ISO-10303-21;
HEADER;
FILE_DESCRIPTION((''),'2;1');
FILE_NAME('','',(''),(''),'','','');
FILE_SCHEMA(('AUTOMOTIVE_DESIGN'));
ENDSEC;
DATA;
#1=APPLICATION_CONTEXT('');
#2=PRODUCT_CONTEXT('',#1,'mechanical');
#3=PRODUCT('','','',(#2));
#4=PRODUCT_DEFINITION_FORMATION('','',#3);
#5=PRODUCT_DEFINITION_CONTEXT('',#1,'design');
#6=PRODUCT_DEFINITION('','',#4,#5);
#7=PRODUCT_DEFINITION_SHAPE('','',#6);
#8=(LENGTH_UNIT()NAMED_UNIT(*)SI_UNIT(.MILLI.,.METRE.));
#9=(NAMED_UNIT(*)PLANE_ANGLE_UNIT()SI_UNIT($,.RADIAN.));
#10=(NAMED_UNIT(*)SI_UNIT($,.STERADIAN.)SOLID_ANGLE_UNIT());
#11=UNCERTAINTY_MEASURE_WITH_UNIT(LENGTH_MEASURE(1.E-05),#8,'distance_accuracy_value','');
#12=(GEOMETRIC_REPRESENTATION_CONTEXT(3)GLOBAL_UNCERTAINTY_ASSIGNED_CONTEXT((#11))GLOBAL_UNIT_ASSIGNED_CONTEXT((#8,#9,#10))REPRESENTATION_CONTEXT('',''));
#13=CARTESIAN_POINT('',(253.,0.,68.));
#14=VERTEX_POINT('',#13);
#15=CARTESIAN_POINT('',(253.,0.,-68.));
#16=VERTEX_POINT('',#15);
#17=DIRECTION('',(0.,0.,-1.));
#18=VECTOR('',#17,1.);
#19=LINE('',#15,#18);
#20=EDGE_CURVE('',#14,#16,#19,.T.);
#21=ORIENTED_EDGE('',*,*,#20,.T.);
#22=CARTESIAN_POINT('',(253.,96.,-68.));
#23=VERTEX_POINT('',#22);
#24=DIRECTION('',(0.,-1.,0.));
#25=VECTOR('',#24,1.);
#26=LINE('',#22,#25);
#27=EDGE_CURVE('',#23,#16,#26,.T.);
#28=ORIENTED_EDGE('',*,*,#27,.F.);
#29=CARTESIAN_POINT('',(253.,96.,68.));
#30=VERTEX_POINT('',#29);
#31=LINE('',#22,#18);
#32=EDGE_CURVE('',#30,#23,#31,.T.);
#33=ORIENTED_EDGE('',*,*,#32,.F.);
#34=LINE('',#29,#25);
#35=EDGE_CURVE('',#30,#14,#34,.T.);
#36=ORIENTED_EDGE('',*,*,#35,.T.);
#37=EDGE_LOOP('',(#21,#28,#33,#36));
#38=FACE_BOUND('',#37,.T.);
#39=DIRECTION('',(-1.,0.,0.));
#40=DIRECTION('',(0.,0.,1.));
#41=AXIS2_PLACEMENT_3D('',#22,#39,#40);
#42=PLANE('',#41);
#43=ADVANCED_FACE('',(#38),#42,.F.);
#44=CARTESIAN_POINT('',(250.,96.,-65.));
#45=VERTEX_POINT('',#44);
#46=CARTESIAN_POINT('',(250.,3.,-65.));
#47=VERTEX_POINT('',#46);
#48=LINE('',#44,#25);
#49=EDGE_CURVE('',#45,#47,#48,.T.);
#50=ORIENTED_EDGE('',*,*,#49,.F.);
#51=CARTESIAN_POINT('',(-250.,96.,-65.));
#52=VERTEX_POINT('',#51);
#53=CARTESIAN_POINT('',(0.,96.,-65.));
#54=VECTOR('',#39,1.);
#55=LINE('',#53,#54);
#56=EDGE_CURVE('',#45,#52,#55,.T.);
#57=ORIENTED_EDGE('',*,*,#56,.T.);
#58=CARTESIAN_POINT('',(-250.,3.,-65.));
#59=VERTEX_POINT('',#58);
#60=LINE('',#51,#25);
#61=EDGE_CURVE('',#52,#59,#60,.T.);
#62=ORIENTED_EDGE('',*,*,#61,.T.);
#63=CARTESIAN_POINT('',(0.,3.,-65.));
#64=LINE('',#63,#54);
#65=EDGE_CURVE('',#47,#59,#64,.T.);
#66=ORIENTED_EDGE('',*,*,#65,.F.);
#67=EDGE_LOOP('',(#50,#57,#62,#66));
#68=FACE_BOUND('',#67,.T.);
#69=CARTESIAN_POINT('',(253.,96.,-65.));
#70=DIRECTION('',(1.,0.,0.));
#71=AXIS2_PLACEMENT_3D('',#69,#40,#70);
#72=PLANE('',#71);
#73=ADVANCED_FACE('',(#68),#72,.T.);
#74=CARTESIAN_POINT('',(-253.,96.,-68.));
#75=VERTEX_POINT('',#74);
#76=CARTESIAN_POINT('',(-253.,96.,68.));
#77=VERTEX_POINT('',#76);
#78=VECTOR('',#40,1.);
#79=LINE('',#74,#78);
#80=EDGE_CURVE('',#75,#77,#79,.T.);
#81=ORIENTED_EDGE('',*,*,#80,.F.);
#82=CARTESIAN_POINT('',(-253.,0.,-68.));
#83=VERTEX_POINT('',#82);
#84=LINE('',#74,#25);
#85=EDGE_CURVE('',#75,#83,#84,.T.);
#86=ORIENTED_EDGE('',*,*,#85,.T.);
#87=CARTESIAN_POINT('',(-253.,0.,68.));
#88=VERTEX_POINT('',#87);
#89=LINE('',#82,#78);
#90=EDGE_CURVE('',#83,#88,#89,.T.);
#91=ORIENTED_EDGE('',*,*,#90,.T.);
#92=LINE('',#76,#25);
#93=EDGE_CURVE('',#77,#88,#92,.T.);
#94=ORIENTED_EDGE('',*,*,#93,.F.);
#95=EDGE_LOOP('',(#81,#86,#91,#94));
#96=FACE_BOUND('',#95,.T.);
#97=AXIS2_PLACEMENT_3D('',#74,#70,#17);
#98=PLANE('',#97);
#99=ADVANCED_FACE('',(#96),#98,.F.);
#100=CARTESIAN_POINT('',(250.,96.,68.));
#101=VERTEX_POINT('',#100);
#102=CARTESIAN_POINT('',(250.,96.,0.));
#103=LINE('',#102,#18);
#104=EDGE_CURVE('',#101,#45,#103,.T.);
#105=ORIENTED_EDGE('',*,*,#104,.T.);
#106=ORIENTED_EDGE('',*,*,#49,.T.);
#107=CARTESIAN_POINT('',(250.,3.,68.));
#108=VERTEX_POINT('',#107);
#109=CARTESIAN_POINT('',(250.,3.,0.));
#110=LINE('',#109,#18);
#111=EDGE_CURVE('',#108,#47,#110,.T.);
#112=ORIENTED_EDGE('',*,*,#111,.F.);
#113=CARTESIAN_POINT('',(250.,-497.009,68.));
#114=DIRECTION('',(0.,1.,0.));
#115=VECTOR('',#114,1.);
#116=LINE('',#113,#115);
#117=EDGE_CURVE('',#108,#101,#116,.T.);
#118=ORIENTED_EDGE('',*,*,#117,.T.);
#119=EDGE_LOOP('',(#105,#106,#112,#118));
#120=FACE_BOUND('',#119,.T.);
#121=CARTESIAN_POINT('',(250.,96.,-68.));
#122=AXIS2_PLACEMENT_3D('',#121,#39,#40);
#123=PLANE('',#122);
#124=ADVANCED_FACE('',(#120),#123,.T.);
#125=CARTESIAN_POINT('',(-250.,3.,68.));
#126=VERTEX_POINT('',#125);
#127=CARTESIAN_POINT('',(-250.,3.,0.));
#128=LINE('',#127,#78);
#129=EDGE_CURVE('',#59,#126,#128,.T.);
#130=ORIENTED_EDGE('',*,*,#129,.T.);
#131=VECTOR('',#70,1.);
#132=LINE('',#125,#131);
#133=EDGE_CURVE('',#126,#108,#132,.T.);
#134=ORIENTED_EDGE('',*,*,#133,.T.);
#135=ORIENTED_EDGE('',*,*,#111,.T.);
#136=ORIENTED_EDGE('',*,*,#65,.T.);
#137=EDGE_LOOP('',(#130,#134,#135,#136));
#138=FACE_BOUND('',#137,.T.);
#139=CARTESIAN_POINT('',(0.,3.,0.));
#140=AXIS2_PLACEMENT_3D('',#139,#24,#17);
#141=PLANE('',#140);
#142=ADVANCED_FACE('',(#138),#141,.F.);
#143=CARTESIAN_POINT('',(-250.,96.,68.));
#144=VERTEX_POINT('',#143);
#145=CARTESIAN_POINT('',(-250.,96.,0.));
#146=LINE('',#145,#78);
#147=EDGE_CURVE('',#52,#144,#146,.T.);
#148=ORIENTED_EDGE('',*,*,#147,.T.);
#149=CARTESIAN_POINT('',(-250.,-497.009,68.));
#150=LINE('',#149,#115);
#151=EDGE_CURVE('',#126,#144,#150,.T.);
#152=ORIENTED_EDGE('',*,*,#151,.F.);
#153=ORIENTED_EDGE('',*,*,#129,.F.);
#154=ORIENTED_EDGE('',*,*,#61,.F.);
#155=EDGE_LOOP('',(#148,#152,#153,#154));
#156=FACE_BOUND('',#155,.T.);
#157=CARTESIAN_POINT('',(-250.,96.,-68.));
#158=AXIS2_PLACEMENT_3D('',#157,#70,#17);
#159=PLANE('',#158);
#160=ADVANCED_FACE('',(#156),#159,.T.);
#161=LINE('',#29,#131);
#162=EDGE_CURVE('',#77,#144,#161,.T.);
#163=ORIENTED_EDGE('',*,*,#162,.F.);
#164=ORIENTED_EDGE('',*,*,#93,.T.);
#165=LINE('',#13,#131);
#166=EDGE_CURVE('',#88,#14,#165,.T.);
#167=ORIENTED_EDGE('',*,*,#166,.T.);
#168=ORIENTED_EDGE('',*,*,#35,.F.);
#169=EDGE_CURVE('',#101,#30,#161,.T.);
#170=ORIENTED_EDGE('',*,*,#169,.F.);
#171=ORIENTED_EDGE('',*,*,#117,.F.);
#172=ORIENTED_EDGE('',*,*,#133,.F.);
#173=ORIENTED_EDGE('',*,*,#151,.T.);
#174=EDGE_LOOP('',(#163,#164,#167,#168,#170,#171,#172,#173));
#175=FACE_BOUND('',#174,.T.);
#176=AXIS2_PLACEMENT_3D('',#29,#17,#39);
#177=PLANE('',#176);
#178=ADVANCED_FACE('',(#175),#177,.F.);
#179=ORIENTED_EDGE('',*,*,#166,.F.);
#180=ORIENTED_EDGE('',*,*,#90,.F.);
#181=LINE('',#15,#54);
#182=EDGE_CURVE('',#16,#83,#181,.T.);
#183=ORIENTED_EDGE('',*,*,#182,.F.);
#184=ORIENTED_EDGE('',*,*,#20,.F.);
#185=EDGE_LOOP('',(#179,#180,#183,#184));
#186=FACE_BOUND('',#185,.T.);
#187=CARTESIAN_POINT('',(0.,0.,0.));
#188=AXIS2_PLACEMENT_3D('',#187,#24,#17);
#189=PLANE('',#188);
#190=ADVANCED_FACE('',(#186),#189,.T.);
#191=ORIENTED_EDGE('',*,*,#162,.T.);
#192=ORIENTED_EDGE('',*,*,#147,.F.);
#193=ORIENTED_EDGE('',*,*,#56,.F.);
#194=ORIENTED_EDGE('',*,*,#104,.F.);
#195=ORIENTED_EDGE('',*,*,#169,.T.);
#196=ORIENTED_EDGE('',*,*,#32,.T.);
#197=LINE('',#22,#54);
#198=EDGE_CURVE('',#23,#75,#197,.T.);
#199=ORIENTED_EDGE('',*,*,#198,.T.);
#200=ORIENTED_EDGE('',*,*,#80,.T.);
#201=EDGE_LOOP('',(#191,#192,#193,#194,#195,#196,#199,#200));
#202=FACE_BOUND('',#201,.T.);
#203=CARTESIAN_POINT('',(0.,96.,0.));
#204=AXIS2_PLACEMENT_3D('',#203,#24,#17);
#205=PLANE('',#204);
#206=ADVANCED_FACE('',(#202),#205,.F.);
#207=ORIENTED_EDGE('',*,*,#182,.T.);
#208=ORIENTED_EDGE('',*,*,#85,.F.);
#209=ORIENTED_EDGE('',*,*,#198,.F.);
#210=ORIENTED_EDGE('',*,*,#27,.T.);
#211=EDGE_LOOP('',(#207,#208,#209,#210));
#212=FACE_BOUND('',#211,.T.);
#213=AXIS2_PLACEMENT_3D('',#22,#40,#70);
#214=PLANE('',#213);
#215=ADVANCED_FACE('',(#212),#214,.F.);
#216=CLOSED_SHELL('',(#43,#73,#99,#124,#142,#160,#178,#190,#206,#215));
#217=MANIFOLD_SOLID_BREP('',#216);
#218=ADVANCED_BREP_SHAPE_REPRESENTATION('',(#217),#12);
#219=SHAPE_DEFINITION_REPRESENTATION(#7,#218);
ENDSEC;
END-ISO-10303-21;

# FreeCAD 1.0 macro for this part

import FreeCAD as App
import Part
import Sketcher
from FreeCAD import Vector
Q = App.Units.Quantity


def faces_at(feature, points):
    """Names of the faces that lie closest to the given points."""
    faces = feature.Shape.Faces
    near = lambda p: min(range(len(faces)), key=lambda i: faces[i].distToShape(Part.Vertex(*p))[0])
    return sorted({f"Face{near(p) + 1}" for p in points})

doc = App.newDocument("Part")
body = doc.addObject("PartDesign::Body", "Body")

sketch1 = body.newObject("Sketcher::SketchObject", "Sketch")
sketch1.AttachmentSupport = (doc.getObject("XZ_Plane"), [""])
sketch1.MapMode = "FlatFace"
sketch1.addGeometry([
    Part.LineSegment(Vector(-253, -68, 0), Vector(-253, 68, 0)),
    Part.LineSegment(Vector(-253, 68, 0), Vector(253, 68, 0)),
    Part.LineSegment(Vector(253, 68, 0), Vector(253, -68, 0)),
    Part.LineSegment(Vector(253, -68, 0), Vector(-253, -68, 0)),
], False)
sketch1.addConstraint([
    Sketcher.Constraint("Coincident", 0, 2, 1, 1),
    Sketcher.Constraint("Coincident", 1, 2, 2, 1),
    Sketcher.Constraint("Coincident", 2, 2, 3, 1),
    Sketcher.Constraint("Coincident", 3, 2, 0, 1),
    Sketcher.Constraint("Vertical", 0),
    Sketcher.Constraint("Horizontal", 1),
    Sketcher.Constraint("Vertical", 2),
    Sketcher.Constraint("Horizontal", 3),
    Sketcher.Constraint("Symmetric", 0, 2, 2, 2, -1, 1),
    Sketcher.Constraint("DistanceX", 1, 1, 1, 2, Q("506 mm")),
    Sketcher.Constraint("DistanceY", 0, 1, 0, 2, Q("136 mm")),
])
pad1 = body.newObject("PartDesign::Pad", "Pad")
pad1.Profile = sketch1
pad1.Length = 96
pad1.Reversed = True
doc.recompute()

thickness = body.newObject("PartDesign::Thickness", "Thickness")
thickness.Base = (pad1, faces_at(pad1, [(0, 96, 0)]))
thickness.Value = 3
thickness.Reversed = True
thickness.Join = "Intersection"

sketch2 = body.newObject("Sketcher::SketchObject", "Sketch001")
sketch2.AttachmentSupport = (doc.getObject("XZ_Plane"), [""])
sketch2.MapMode = "FlatFace"
sketch2.AttachmentOffset = App.Placement(Vector(0, 0, -96), App.Rotation())
sketch2.addGeometry([
    Part.LineSegment(Vector(-250, 65, 0), Vector(-250, 68, 0)),
    Part.LineSegment(Vector(-250, 68, 0), Vector(250, 68, 0)),
    Part.LineSegment(Vector(250, 68, 0), Vector(250, 65, 0)),
    Part.LineSegment(Vector(250, 65, 0), Vector(-250, 65, 0)),
], False)
sketch2.addConstraint([
    Sketcher.Constraint("Coincident", 0, 2, 1, 1),
    Sketcher.Constraint("Coincident", 1, 2, 2, 1),
    Sketcher.Constraint("Coincident", 2, 2, 3, 1),
    Sketcher.Constraint("Coincident", 3, 2, 0, 1),
    Sketcher.Constraint("Vertical", 0),
    Sketcher.Constraint("Horizontal", 1),
    Sketcher.Constraint("Vertical", 2),
    Sketcher.Constraint("Horizontal", 3),
    Sketcher.Constraint("DistanceX", 1, 1, 1, 2, Q("500 mm")),
    Sketcher.Constraint("DistanceY", 0, 1, 0, 2, Q("3 mm")),
    Sketcher.Constraint("DistanceX", 0, 2, -1, 1, Q("250 mm")),
    Sketcher.Constraint("DistanceY", -1, 1, 0, 2, Q("68 mm")),
])
pocket1 = body.newObject("PartDesign::Pocket", "Pocket")
pocket1.Profile = sketch2
pocket1.Length = 93
pocket1.Reversed = True

doc.recompute()
